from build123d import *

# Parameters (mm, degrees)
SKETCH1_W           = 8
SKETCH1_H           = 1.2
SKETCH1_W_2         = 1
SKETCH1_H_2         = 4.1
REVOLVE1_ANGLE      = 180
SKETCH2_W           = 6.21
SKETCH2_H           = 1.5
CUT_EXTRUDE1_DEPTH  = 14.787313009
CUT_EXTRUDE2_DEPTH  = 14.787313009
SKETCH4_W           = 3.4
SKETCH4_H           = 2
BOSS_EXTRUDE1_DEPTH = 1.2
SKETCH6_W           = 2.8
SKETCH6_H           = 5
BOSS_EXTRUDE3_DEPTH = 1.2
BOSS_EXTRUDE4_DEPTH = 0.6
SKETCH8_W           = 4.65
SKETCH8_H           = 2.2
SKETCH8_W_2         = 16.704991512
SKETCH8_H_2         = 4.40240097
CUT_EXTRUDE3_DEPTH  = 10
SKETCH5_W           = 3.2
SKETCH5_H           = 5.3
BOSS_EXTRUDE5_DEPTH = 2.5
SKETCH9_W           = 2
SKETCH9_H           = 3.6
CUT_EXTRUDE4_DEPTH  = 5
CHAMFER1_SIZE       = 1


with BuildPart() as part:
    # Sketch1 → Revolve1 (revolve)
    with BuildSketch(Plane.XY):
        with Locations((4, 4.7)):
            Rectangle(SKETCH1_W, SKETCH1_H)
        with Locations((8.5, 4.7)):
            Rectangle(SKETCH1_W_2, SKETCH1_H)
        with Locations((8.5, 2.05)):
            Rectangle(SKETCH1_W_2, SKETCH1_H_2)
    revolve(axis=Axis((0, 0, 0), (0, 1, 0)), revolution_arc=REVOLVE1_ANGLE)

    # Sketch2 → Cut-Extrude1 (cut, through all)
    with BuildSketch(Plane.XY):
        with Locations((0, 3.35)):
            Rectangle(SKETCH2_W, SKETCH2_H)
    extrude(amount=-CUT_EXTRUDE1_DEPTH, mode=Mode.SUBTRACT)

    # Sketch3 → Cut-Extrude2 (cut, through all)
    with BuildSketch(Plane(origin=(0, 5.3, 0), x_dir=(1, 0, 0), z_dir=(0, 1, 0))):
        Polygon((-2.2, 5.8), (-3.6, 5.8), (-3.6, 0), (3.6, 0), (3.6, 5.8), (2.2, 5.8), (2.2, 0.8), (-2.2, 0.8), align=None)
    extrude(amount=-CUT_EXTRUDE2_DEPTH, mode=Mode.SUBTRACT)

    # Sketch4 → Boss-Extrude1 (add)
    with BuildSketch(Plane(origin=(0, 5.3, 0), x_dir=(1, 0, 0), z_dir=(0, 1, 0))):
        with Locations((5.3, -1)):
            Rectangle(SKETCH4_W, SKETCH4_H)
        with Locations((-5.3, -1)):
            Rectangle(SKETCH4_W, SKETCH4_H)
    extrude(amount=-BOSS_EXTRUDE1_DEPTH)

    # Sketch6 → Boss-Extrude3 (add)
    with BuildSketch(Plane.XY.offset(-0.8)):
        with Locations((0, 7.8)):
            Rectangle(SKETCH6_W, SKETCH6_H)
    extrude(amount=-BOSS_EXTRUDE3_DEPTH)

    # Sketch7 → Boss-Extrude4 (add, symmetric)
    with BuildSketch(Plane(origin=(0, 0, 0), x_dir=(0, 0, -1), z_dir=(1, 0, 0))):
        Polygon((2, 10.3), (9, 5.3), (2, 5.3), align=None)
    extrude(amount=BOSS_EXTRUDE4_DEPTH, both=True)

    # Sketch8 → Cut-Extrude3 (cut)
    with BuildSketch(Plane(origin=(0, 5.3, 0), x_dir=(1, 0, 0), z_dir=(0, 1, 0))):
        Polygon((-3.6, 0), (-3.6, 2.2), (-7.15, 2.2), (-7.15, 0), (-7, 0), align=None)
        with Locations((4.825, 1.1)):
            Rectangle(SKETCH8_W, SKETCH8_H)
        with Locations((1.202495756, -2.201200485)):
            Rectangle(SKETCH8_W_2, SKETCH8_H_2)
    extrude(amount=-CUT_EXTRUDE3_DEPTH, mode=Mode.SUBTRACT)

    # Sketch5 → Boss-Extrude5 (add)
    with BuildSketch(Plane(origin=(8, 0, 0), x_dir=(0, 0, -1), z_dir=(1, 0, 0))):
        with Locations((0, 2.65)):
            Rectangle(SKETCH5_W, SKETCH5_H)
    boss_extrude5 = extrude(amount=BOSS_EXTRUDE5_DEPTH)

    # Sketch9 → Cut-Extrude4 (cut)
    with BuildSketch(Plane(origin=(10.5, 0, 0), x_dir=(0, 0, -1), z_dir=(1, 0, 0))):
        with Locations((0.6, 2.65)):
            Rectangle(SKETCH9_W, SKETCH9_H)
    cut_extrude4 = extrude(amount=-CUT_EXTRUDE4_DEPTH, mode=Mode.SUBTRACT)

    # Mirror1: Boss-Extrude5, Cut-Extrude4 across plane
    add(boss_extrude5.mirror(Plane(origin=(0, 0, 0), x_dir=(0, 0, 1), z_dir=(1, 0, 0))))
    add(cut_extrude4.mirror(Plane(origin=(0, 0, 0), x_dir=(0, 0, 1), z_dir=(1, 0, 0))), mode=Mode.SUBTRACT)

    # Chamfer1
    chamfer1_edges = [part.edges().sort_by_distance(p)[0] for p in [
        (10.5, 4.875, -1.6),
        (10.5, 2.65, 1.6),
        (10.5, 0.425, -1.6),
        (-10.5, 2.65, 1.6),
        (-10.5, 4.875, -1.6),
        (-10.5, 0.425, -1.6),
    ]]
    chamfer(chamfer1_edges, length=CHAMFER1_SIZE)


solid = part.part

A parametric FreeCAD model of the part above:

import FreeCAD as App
import Part
import Sketcher
Q = App.Units.Quantity


def edges_at(feature, points):
    """Names of the edges that pass closest to the given points."""
    edges = feature.Shape.Edges
    near = lambda p: min(range(len(edges)), key=lambda i: edges[i].distToShape(Part.Vertex(*p))[0])
    return sorted({f"Edge{near(p) + 1}" for p in points})

doc = App.newDocument("Part")
body = doc.addObject("PartDesign::Body", "Body")

# Sketch on XY plane
sketch1 = body.newObject("Sketcher::SketchObject", "Sketch")
sketch1.AttachmentSupport = (doc.getObject("XY_Plane"), [""])
sketch1.MapMode = "FlatFace"
sketch1.addGeometry([
    Part.LineSegment(App.Vector(0, 5.3, 0), App.Vector(0, 4.1, 0)),  # 0
    Part.LineSegment(App.Vector(0, 4.1, 0), App.Vector(8, 4.1, 0)),  # 1
    Part.LineSegment(App.Vector(8, 4.1, 0), App.Vector(8, 0, 0)),  # 2
    Part.LineSegment(App.Vector(8, 0, 0), App.Vector(9, 0, 0)),  # 3
    Part.LineSegment(App.Vector(9, 0, 0), App.Vector(9, 5.3, 0)),  # 4
    Part.LineSegment(App.Vector(9, 5.3, 0), App.Vector(0, 5.3, 0)),  # 5
], False)
sketch1.addConstraint([
    Sketcher.Constraint("Coincident", 0, 2, 1, 1),
    Sketcher.Constraint("Coincident", 1, 2, 2, 1),
    Sketcher.Constraint("Coincident", 2, 2, 3, 1),
    Sketcher.Constraint("Coincident", 3, 2, 4, 1),
    Sketcher.Constraint("Coincident", 4, 2, 5, 1),
    Sketcher.Constraint("Coincident", 5, 2, 0, 1),
    Sketcher.Constraint("Vertical", 0),
    Sketcher.Constraint("Horizontal", 1),
    Sketcher.Constraint("Vertical", 2),
    Sketcher.Constraint("Horizontal", 3),
    Sketcher.Constraint("Vertical", 4),
    Sketcher.Constraint("Horizontal", 5),
    Sketcher.Constraint("PointOnObject", 0, 2, -2),
    Sketcher.Constraint("PointOnObject", 2, 2, -1),
    Sketcher.Constraint("DistanceX", 1, 1, 1, 2, Q("8 mm")),
    Sketcher.Constraint("DistanceX", 3, 1, 3, 2, Q("1 mm")),
    Sketcher.Constraint("DistanceY", 0, 2, 0, 1, Q("1.2 mm")),
    Sketcher.Constraint("DistanceY", 2, 2, 2, 1, Q("4.1 mm")),
])
revolution = body.newObject("PartDesign::Revolution", "Revolution")
revolution.Profile = sketch1
revolution.ReferenceAxis = (sketch1, ["V_Axis"])
revolution.Angle = 180

# Sketch on XY plane
sketch2 = body.newObject("Sketcher::SketchObject", "Sketch001")
sketch2.AttachmentSupport = (doc.getObject("XY_Plane"), [""])
sketch2.MapMode = "FlatFace"
sketch2.addGeometry([
    Part.LineSegment(App.Vector(-3.105, 4.1, 0), App.Vector(-3.105, 2.6, 0)),
    Part.LineSegment(App.Vector(-3.105, 2.6, 0), App.Vector(3.105, 2.6, 0)),
    Part.LineSegment(App.Vector(3.105, 2.6, 0), App.Vector(3.105, 4.1, 0)),
    Part.LineSegment(App.Vector(3.105, 4.1, 0), App.Vector(-3.105, 4.1, 0)),
], False)
sketch2.addConstraint([
    Sketcher.Constraint("Coincident", 0, 2, 1, 1),
    Sketcher.Constraint("Coincident", 1, 2, 2, 1),
    Sketcher.Constraint("Coincident", 2, 2, 3, 1),
    Sketcher.Constraint("Coincident", 3, 2, 0, 1),
    Sketcher.Constraint("Vertical", 0),
    Sketcher.Constraint("Horizontal", 1),
    Sketcher.Constraint("Vertical", 2),
    Sketcher.Constraint("Horizontal", 3),
    Sketcher.Constraint("DistanceY", 0, 2, 0, 1, Q("1.5 mm")),
    Sketcher.Constraint("DistanceX", 1, 1, 1, 2, Q("6.21 mm")),
    Sketcher.Constraint("DistanceY", -1, 1, 0, 2, Q("2.6 mm")),
    Sketcher.Constraint("DistanceX", 0, 2, -1, 1, Q("3.105 mm")),
])
pocket1 = body.newObject("PartDesign::Pocket", "Pocket")
pocket1.Profile = sketch2
pocket1.Type = "ThroughAll"

# Sketch on XZ plane
sketch3 = body.newObject("Sketcher::SketchObject", "Sketch002")
sketch3.AttachmentSupport = (doc.getObject("XZ_Plane"), [""])
sketch3.MapMode = "FlatFace"
sketch3.AttachmentOffset = App.Placement(App.Vector(0, 0, -5.3), App.Rotation())
sketch3.addGeometry([
    Part.LineSegment(App.Vector(-2.2, -5.8, 0), App.Vector(-3.6, -5.8, 0)),  # 0
    Part.LineSegment(App.Vector(-3.6, -5.8, 0), App.Vector(-3.6, 0, 0)),  # 1
    Part.LineSegment(App.Vector(-3.6, 0, 0), App.Vector(3.6, 0, 0)),  # 2
    Part.LineSegment(App.Vector(3.6, 0, 0), App.Vector(3.6, -5.8, 0)),  # 3
    Part.LineSegment(App.Vector(3.6, -5.8, 0), App.Vector(2.2, -5.8, 0)),  # 4
    Part.LineSegment(App.Vector(2.2, -5.8, 0), App.Vector(2.2, -0.8, 0)),  # 5
    Part.LineSegment(App.Vector(2.2, -0.8, 0), App.Vector(-2.2, -0.8, 0)),  # 6
    Part.LineSegment(App.Vector(-2.2, -0.8, 0), App.Vector(-2.2, -5.8, 0)),  # 7
], False)
sketch3.addConstraint([
    Sketcher.Constraint("Coincident", 0, 2, 1, 1),
    Sketcher.Constraint("Coincident", 1, 2, 2, 1),
    Sketcher.Constraint("Coincident", 2, 2, 3, 1),
    Sketcher.Constraint("Coincident", 3, 2, 4, 1),
    Sketcher.Constraint("Coincident", 4, 2, 5, 1),
    Sketcher.Constraint("Coincident", 5, 2, 6, 1),
    Sketcher.Constraint("Coincident", 6, 2, 7, 1),
    Sketcher.Constraint("Coincident", 7, 2, 0, 1),
    Sketcher.Constraint("Horizontal", 0),
    Sketcher.Constraint("Vertical", 1),
    Sketcher.Constraint("Horizontal", 2),
    Sketcher.Constraint("Vertical", 3),
    Sketcher.Constraint("Horizontal", 4),
    Sketcher.Constraint("Vertical", 5),
    Sketcher.Constraint("Horizontal", 6),
    Sketcher.Constraint("Vertical", 7),
    Sketcher.Constraint("Symmetric", 1, 2, 2, 2, -1, 1),
    Sketcher.Constraint("Symmetric", 4, 2, 7, 2, -2),
    Sketcher.Constraint("DistanceY", 5, 1, 5, 2, Q("5 mm")),
    Sketcher.Constraint("DistanceX", 0, 2, 0, 1, Q("1.4 mm")),
    Sketcher.Constraint("DistanceX", 2, 1, 2, 2, Q("7.2 mm")),
    Sketcher.Constraint("DistanceY", 1, 1, 1, 2, Q("5.8 mm")),
])
pocket2 = body.newObject("PartDesign::Pocket", "Pocket001")
pocket2.Profile = sketch3
pocket2.Type = "ThroughAll"
pocket2.Reversed = True

# Sketch on XZ plane
sketch4 = body.newObject("Sketcher::SketchObject", "Sketch003")
sketch4.AttachmentSupport = (doc.getObject("XZ_Plane"), [""])
sketch4.MapMode = "FlatFace"
sketch4.AttachmentOffset = App.Placement(App.Vector(0, 0, -5.3), App.Rotation())
sketch4.addGeometry([
    Part.LineSegment(App.Vector(3.6, 0, 0), App.Vector(3.6, 2, 0)),  # 0
    Part.LineSegment(App.Vector(3.6, 2, 0), App.Vector(7, 2, 0)),  # 1
    Part.LineSegment(App.Vector(7, 2, 0), App.Vector(7, 0, 0)),  # 2
    Part.LineSegment(App.Vector(7, 0, 0), App.Vector(3.6, 0, 0)),  # 3
    Part.LineSegment(App.Vector(-7, 0, 0), App.Vector(-7, 2, 0)),  # 4
    Part.LineSegment(App.Vector(-7, 2, 0), App.Vector(-3.6, 2, 0)),  # 5
    Part.LineSegment(App.Vector(-3.6, 2, 0), App.Vector(-3.6, 0, 0)),  # 6
    Part.LineSegment(App.Vector(-3.6, 0, 0), App.Vector(-7, 0, 0)),  # 7
], False)
sketch4.addConstraint([
    Sketcher.Constraint("Coincident", 0, 2, 1, 1),
    Sketcher.Constraint("Coincident", 1, 2, 2, 1),
    Sketcher.Constraint("Coincident", 2, 2, 3, 1),
    Sketcher.Constraint("Coincident", 3, 2, 0, 1),
    Sketcher.Constraint("Coincident", 4, 2, 5, 1),
    Sketcher.Constraint("Coincident", 5, 2, 6, 1),
    Sketcher.Constraint("Coincident", 6, 2, 7, 1),
    Sketcher.Constraint("Coincident", 7, 2, 4, 1),
    Sketcher.Constraint("Vertical", 0),
    Sketcher.Constraint("Horizontal", 1),
    Sketcher.Constraint("Vertical", 2),
    Sketcher.Constraint("Horizontal", 3),
    Sketcher.Constraint("Vertical", 4),
    Sketcher.Constraint("Horizontal", 5),
    Sketcher.Constraint("Vertical", 6),
    Sketcher.Constraint("Horizontal", 7),
    Sketcher.Constraint("Symmetric", 3, 2, 6, 2, -1, 1),
    Sketcher.Constraint("Symmetric", 1, 2, 4, 2, -2),
    Sketcher.Constraint("PointOnObject", 2, 2, -1),
    Sketcher.Constraint("DistanceY", 0, 1, 0, 2, Q("2 mm")),
    Sketcher.Constraint("DistanceX", 1, 1, 1, 2, Q("3.4 mm")),
    Sketcher.Constraint("DistanceX", -1, 1, 1, 2, Q("7 mm")),
])
pad1 = body.newObject("PartDesign::Pad", "Pad")
pad1.Profile = sketch4
pad1.Length = 1.2

# Sketch on XY plane
sketch5 = body.newObject("Sketcher::SketchObject", "Sketch004")
sketch5.AttachmentSupport = (doc.getObject("XY_Plane"), [""])
sketch5.MapMode = "FlatFace"
sketch5.AttachmentOffset = App.Placement(App.Vector(0, 0, -0.8), App.Rotation())
sketch5.addGeometry([
    Part.LineSegment(App.Vector(-1.4, 10.3, 0), App.Vector(-1.4, 5.3, 0)),
    Part.LineSegment(App.Vector(-1.4, 5.3, 0), App.Vector(1.4, 5.3, 0)),
    Part.LineSegment(App.Vector(1.4, 5.3, 0), App.Vector(1.4, 10.3, 0)),
    Part.LineSegment(App.Vector(1.4, 10.3, 0), App.Vector(-1.4, 10.3, 0)),
], False)
sketch5.addConstraint([
    Sketcher.Constraint("Coincident", 0, 2, 1, 1),
    Sketcher.Constraint("Coincident", 1, 2, 2, 1),
    Sketcher.Constraint("Coincident", 2, 2, 3, 1),
    Sketcher.Constraint("Coincident", 3, 2, 0, 1),
    Sketcher.Constraint("Vertical", 0),
    Sketcher.Constraint("Horizontal", 1),
    Sketcher.Constraint("Vertical", 2),
    Sketcher.Constraint("Horizontal", 3),
    Sketcher.Constraint("DistanceY", 0, 2, 0, 1, Q("5 mm")),
    Sketcher.Constraint("DistanceX", 1, 1, 1, 2, Q("2.8 mm")),
    Sketcher.Constraint("DistanceX", 0, 2, -1, 1, Q("1.4 mm")),
    Sketcher.Constraint("DistanceY", -1, 1, 0, 2, Q("5.3 mm")),
])
pad2 = body.newObject("PartDesign::Pad", "Pad001")
pad2.Profile = sketch5
pad2.Length = 1.2
pad2.Reversed = True

# Sketch on YZ plane
sketch6 = body.newObject("Sketcher::SketchObject", "Sketch005")
sketch6.AttachmentSupport = (doc.getObject("YZ_Plane"), [""])
sketch6.MapMode = "FlatFace"
sketch6.addGeometry([
    Part.LineSegment(App.Vector(5.3, -9, 0), App.Vector(10.3, -2, 0)),
    Part.LineSegment(App.Vector(10.3, -2, 0), App.Vector(5.3, -2, 0)),
    Part.LineSegment(App.Vector(5.3, -2, 0), App.Vector(5.3, -9, 0)),
], False)
sketch6.addConstraint([
    Sketcher.Constraint("Coincident", 0, 2, 1, 1),
    Sketcher.Constraint("Coincident", 1, 2, 2, 1),
    Sketcher.Constraint("Coincident", 2, 2, 0, 1),
    Sketcher.Constraint("Horizontal", 1),
    Sketcher.Constraint("Vertical", 2),
    Sketcher.Constraint("DistanceX", 1, 2, 1, 1, Q("5 mm")),
    Sketcher.Constraint("DistanceY", 2, 2, 2, 1, Q("7 mm")),
    Sketcher.Constraint("DistanceY", 0, 2, -1, 1, Q("2 mm")),
    Sketcher.Constraint("DistanceX", -1, 1, 0, 2, Q("10.3 mm")),
])
pad3 = body.newObject("PartDesign::Pad", "Pad002")
pad3.Profile = sketch6
pad3.Length = 1.2
pad3.Midplane = True

# Sketch on XZ plane
sketch7 = body.newObject("Sketcher::SketchObject", "Sketch006")
sketch7.AttachmentSupport = (doc.getObject("XZ_Plane"), [""])
sketch7.MapMode = "FlatFace"
sketch7.AttachmentOffset = App.Placement(App.Vector(0, 0, -5.3), App.Rotation())
sketch7.addGeometry([
    Part.LineSegment(App.Vector(-3.6, 0, 0), App.Vector(-3.6, -2.2, 0)),  # 0
    Part.LineSegment(App.Vector(-3.6, -2.2, 0), App.Vector(-7.15, -2.2, 0)),  # 1
    Part.LineSegment(App.Vector(-7.15, -2.2, 0), App.Vector(-7.15, 4.402401, 0)),  # 2
    Part.LineSegment(App.Vector(-7.15, 4.402401, 0), App.Vector(9.554992, 4.402401, 0)),  # 3
    Part.LineSegment(App.Vector(9.554992, 4.402401, 0), App.Vector(9.554992, 0, 0)),  # 4
    Part.LineSegment(App.Vector(9.554992, 0, 0), App.Vector(7.15, 0, 0)),  # 5
    Part.LineSegment(App.Vector(7.15, 0, 0), App.Vector(7.15, -2.2, 0)),  # 6
    Part.LineSegment(App.Vector(7.15, -2.2, 0), App.Vector(2.5, -2.2, 0)),  # 7
    Part.LineSegment(App.Vector(2.5, -2.2, 0), App.Vector(2.5, 0, 0)),  # 8
    Part.LineSegment(App.Vector(2.5, 0, 0), App.Vector(-3.6, 0, 0)),  # 9
], False)
sketch7.addConstraint([
    Sketcher.Constraint("Coincident", 0, 2, 1, 1),
    Sketcher.Constraint("Coincident", 1, 2, 2, 1),
    Sketcher.Constraint("Coincident", 2, 2, 3, 1),
    Sketcher.Constraint("Coincident", 3, 2, 4, 1),
    Sketcher.Constraint("Coincident", 4, 2, 5, 1),
    Sketcher.Constraint("Coincident", 5, 2, 6, 1),
    Sketcher.Constraint("Coincident", 6, 2, 7, 1),
    Sketcher.Constraint("Coincident", 7, 2, 8, 1),
    Sketcher.Constraint("Coincident", 8, 2, 9, 1),
    Sketcher.Constraint("Coincident", 9, 2, 0, 1),
    Sketcher.Constraint("Vertical", 0),
    Sketcher.Constraint("Horizontal", 1),
    Sketcher.Constraint("Vertical", 2),
    Sketcher.Constraint("Horizontal", 3),
    Sketcher.Constraint("Vertical", 4),
    Sketcher.Constraint("Horizontal", 5),
    Sketcher.Constraint("Vertical", 6),
    Sketcher.Constraint("Horizontal", 7),
    Sketcher.Constraint("Vertical", 8),
    Sketcher.Constraint("Horizontal", 9),
    Sketcher.Constraint("Symmetric", 1, 2, 6, 2, -2),
    Sketcher.Constraint("PointOnObject", 4, 2, -1),
    Sketcher.Constraint("PointOnObject", 8, 2, -1),
    Sketcher.Constraint("DistanceX", 9, 2, 9, 1, Q("6.1 mm")),
    Sketcher.Constraint("DistanceY", 0, 2, 0, 1, Q("2.2 mm")),
    Sketcher.Constraint("DistanceX", 1, 2, 1, 1, Q("3.55 mm")),
    Sketcher.Constraint("DistanceX", 7, 2, 7, 1, Q("4.65 mm")),
    Sketcher.Constraint("DistanceY", 2, 1, 2, 2, Q("6.602401 mm")),
    Sketcher.Constraint("DistanceX", 3, 1, 3, 2, Q("16.704992 mm")),
])
pocket3 = body.newObject("PartDesign::Pocket", "Pocket002")
pocket3.Profile = sketch7
pocket3.Length = 10
pocket3.Reversed = True

# Sketch on YZ plane
sketch8 = body.newObject("Sketcher::SketchObject", "Sketch007")
sketch8.AttachmentSupport = (doc.getObject("YZ_Plane"), [""])
sketch8.MapMode = "FlatFace"
sketch8.AttachmentOffset = App.Placement(App.Vector(0, 0, 8), App.Rotation())
sketch8.addGeometry([
    Part.LineSegment(App.Vector(5.3, 1.6, 0), App.Vector(0, 1.6, 0)),
    Part.LineSegment(App.Vector(0, 1.6, 0), App.Vector(0, -1.6, 0)),
    Part.LineSegment(App.Vector(0, -1.6, 0), App.Vector(5.3, -1.6, 0)),
    Part.LineSegment(App.Vector(5.3, -1.6, 0), App.Vector(5.3, 1.6, 0)),
], False)
sketch8.addConstraint([
    Sketcher.Constraint("Coincident", 0, 2, 1, 1),
    Sketcher.Constraint("Coincident", 1, 2, 2, 1),
    Sketcher.Constraint("Coincident", 2, 2, 3, 1),
    Sketcher.Constraint("Coincident", 3, 2, 0, 1),
    Sketcher.Constraint("Horizontal", 0),
    Sketcher.Constraint("Vertical", 1),
    Sketcher.Constraint("Horizontal", 2),
    Sketcher.Constraint("Vertical", 3),
    Sketcher.Constraint("Symmetric", 0, 2, 1, 2, -1, 1),
    Sketcher.Constraint("DistanceX", 0, 2, 0, 1, Q("5.3 mm")),
    Sketcher.Constraint("DistanceY", 1, 2, 1, 1, Q("3.2 mm")),
])
pad4 = body.newObject("PartDesign::Pad", "Pad003")
pad4.Profile = sketch8
pad4.Length = 2.5

# Sketch on YZ plane
sketch9 = body.newObject("Sketcher::SketchObject", "Sketch008")
sketch9.AttachmentSupport = (doc.getObject("YZ_Plane"), [""])
sketch9.MapMode = "FlatFace"
sketch9.AttachmentOffset = App.Placement(App.Vector(0, 0, 10.5), App.Rotation())
sketch9.addGeometry([
    Part.LineSegment(App.Vector(4.45, 0.4, 0), App.Vector(0.85, 0.4, 0)),
    Part.LineSegment(App.Vector(0.85, 0.4, 0), App.Vector(0.85, -1.6, 0)),
    Part.LineSegment(App.Vector(0.85, -1.6, 0), App.Vector(4.45, -1.6, 0)),
    Part.LineSegment(App.Vector(4.45, -1.6, 0), App.Vector(4.45, 0.4, 0)),
], False)
sketch9.addConstraint([
    Sketcher.Constraint("Coincident", 0, 2, 1, 1),
    Sketcher.Constraint("Coincident", 1, 2, 2, 1),
    Sketcher.Constraint("Coincident", 2, 2, 3, 1),
    Sketcher.Constraint("Coincident", 3, 2, 0, 1),
    Sketcher.Constraint("Horizontal", 0),
    Sketcher.Constraint("Vertical", 1),
    Sketcher.Constraint("Horizontal", 2),
    Sketcher.Constraint("Vertical", 3),
    Sketcher.Constraint("DistanceY", 1, 2, 1, 1, Q("2 mm")),
    Sketcher.Constraint("DistanceX", 0, 2, 0, 1, Q("3.6 mm")),
    Sketcher.Constraint("DistanceY", -1, 1, 0, 2, Q("0.4 mm")),
    Sketcher.Constraint("DistanceX", -1, 1, 0, 2, Q("0.85 mm")),
])
pocket4 = body.newObject("PartDesign::Pocket", "Pocket003")
pocket4.Profile = sketch9
pocket4.Length = 5
doc.recompute()

mirrored = body.newObject("PartDesign::Mirrored", "Mirrored")
mirrored.Originals = [pad4, pocket4]
mirrored.MirrorPlane = (doc.getObject("YZ_Plane"), [""])
body.Tip = mirrored
doc.recompute()

chamfer = body.newObject("PartDesign::Chamfer", "Chamfer")
chamfer.Base = (mirrored, edges_at(mirrored, [
    (10.5, 4.875, -1.6),
    (10.5, 2.65, 1.6),
    (10.5, 0.425, -1.6),
    (-10.5, 2.65, 1.6),
    (-10.5, 4.875, -1.6),
    (-10.5, 0.425, -1.6),
]))
chamfer.Size = 1

doc.recompute()
